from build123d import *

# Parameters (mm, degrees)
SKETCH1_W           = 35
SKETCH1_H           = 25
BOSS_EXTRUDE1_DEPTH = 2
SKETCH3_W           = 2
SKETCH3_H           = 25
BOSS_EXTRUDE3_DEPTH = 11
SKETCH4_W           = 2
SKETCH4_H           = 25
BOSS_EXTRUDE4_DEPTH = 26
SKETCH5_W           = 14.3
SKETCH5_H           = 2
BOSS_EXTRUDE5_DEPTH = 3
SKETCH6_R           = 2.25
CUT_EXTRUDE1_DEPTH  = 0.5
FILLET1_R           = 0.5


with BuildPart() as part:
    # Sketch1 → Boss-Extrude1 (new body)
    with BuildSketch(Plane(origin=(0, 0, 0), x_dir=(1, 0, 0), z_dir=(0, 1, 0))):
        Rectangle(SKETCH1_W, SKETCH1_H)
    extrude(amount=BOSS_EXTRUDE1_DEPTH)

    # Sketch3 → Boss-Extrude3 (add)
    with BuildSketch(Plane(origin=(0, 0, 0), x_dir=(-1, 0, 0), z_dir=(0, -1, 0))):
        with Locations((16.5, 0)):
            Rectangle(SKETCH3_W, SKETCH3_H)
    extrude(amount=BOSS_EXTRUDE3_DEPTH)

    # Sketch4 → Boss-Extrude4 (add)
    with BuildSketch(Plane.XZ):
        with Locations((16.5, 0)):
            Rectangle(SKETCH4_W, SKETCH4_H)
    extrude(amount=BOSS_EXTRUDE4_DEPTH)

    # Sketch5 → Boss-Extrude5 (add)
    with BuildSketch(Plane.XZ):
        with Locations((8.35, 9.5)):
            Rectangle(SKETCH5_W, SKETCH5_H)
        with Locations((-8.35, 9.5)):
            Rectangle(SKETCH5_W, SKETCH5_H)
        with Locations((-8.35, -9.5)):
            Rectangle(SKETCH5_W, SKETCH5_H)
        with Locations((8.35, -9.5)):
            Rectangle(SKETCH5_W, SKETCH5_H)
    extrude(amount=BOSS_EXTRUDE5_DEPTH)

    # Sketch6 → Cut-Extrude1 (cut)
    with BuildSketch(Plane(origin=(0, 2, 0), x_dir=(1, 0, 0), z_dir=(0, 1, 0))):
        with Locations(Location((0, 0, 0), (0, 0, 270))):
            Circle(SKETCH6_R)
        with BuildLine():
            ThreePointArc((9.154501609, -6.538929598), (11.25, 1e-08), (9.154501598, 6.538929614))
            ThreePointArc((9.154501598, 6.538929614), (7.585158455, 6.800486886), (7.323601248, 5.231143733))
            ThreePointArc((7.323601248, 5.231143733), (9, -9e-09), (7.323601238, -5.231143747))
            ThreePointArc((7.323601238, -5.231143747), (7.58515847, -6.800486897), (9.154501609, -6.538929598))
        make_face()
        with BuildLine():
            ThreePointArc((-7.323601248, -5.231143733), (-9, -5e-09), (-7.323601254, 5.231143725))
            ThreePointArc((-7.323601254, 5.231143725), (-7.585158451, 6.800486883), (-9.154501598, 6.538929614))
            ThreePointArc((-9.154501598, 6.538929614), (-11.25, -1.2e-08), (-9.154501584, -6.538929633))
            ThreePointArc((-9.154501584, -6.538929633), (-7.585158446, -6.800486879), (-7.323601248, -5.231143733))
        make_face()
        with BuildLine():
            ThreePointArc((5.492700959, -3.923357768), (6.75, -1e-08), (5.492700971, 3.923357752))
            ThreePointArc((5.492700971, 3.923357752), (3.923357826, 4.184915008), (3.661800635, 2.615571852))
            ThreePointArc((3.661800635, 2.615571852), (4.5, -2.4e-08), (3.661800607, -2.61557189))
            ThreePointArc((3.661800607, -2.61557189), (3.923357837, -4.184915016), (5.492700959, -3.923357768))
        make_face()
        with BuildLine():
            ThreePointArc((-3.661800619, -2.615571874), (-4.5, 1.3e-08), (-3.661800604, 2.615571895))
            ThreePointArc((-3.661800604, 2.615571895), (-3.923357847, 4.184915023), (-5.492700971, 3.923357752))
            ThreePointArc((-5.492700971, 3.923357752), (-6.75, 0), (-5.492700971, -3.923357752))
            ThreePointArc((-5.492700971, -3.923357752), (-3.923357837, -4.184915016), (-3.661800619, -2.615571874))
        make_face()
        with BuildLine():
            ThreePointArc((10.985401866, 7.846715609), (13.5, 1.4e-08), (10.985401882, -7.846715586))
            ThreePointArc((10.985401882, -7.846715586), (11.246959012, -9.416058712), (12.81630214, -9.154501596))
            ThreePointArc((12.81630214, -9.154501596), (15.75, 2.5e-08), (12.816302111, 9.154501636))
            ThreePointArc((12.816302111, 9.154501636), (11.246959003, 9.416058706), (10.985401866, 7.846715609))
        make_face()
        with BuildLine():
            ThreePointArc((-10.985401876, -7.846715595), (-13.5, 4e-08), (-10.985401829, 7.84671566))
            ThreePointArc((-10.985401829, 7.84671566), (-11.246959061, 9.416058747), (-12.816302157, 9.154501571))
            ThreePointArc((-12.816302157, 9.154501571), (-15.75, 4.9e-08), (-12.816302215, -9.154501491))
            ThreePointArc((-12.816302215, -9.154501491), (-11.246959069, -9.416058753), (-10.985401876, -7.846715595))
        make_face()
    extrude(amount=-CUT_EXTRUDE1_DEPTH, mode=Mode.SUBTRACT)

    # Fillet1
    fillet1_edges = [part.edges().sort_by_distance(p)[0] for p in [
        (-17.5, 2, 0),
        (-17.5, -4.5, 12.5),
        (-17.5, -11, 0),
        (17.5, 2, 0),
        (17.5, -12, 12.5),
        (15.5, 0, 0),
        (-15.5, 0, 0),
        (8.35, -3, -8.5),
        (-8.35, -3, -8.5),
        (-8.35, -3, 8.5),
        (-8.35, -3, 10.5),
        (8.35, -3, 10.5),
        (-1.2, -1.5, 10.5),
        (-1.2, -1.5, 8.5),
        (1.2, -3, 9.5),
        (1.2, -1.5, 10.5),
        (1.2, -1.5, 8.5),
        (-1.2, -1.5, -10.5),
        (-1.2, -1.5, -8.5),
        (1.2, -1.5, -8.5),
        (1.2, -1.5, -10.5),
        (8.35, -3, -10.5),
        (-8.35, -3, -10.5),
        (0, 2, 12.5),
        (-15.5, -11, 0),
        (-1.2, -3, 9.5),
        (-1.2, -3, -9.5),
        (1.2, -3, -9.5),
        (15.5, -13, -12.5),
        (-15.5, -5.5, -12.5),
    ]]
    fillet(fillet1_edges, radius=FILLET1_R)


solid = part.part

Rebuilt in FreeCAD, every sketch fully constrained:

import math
import FreeCAD as App
import Part
import Sketcher


def edges_at(feature, points):
    """Names of the edges that pass closest to the given points."""
    edges = feature.Shape.Edges
    near = lambda p: min(range(len(edges)), key=lambda i: edges[i].distToShape(Part.Vertex(*p))[0])
    return sorted({f"Edge{near(p) + 1}" for p in points})

doc = App.newDocument("Part")
params = doc.addObject("Spreadsheet::Sheet", "Params")
for row, (alias, value) in enumerate([
    ("sketch1_width", "35 mm"),
    ("sketch1_height", "25 mm"),
    ("pad1_length", "2 mm"),
    ("sketch2_width", "2 mm"),
    ("sketch2_height", "25 mm"),
    ("pad2_length", "11 mm"),
    ("sketch3_width", "2 mm"),
    ("sketch3_height", "25 mm"),
    ("pad3_length", "26 mm"),
    ("sketch4_height", "2 mm"),
    ("sketch4_width", "14.3 mm"),
    ("pad4_length", "3 mm"),
    ("sketch5_radius", "9 mm"),
    ("sketch5_diameter", "4.5 mm"),
    ("sketch5_radius2", "4.5 mm"),
    ("sketch5_radius3", "13.5 mm"),
    ("sketch5_radius4", "11.25 mm"),
    ("pocket1_length", "0.5 mm"),
    ("fillet_radius", "0.5 mm"),
], start=1):
    params.set(f"A{row}", alias)
    params.set(f"B{row}", "=" + value)
    params.setAlias(f"B{row}", alias)

body = doc.addObject("PartDesign::Body", "Body")

sketch1 = body.newObject("Sketcher::SketchObject", "Sketch")
sketch1.AttachmentSupport = (doc.getObject("XZ_Plane"), [""])
sketch1.MapMode = "FlatFace"
sketch1.addGeometry([
    Part.LineSegment(App.Vector(-17.5, -12.5, 0), App.Vector(-17.5, 12.5, 0)),
    Part.LineSegment(App.Vector(-17.5, 12.5, 0), App.Vector(17.5, 12.5, 0)),
    Part.LineSegment(App.Vector(17.5, 12.5, 0), App.Vector(17.5, -12.5, 0)),
    Part.LineSegment(App.Vector(17.5, -12.5, 0), App.Vector(-17.5, -12.5, 0)),
], False)
sketch1.addConstraint([
    Sketcher.Constraint("Coincident", 0, 2, 1, 1),
    Sketcher.Constraint("Coincident", 1, 2, 2, 1),
    Sketcher.Constraint("Coincident", 2, 2, 3, 1),
    Sketcher.Constraint("Coincident", 3, 2, 0, 1),
    Sketcher.Constraint("Vertical", 0),
    Sketcher.Constraint("Horizontal", 1),
    Sketcher.Constraint("Vertical", 2),
    Sketcher.Constraint("Horizontal", 3),
    Sketcher.Constraint("Symmetric", 0, 2, 2, 2, -1, 1),
    Sketcher.Constraint("DistanceX", 1, 1, 1, 2, 35.0),
    Sketcher.Constraint("DistanceY", 0, 1, 0, 2, 25.0),
])
sketch1.setExpression("Constraints[9]", "Params.sketch1_width")
sketch1.setExpression("Constraints[10]", "Params.sketch1_height")
pad1 = body.newObject("PartDesign::Pad", "Pad")
pad1.Profile = sketch1
pad1.setExpression("Length", "Params.pad1_length")
pad1.Reversed = True

sketch2 = body.newObject("Sketcher::SketchObject", "Sketch001")
sketch2.AttachmentSupport = (doc.getObject("XZ_Plane"), [""])
sketch2.MapMode = "FlatFace"
sketch2.addGeometry([
    Part.LineSegment(App.Vector(-15.5, -12.5, 0), App.Vector(-15.5, 12.5, 0)),
    Part.LineSegment(App.Vector(-15.5, 12.5, 0), App.Vector(-17.5, 12.5, 0)),
    Part.LineSegment(App.Vector(-17.5, 12.5, 0), App.Vector(-17.5, -12.5, 0)),
    Part.LineSegment(App.Vector(-17.5, -12.5, 0), App.Vector(-15.5, -12.5, 0)),
], False)
sketch2.addConstraint([
    Sketcher.Constraint("Coincident", 0, 2, 1, 1),
    Sketcher.Constraint("Coincident", 1, 2, 2, 1),
    Sketcher.Constraint("Coincident", 2, 2, 3, 1),
    Sketcher.Constraint("Coincident", 3, 2, 0, 1),
    Sketcher.Constraint("Vertical", 0),
    Sketcher.Constraint("Horizontal", 1),
    Sketcher.Constraint("Vertical", 2),
    Sketcher.Constraint("Horizontal", 3),
    Sketcher.Constraint("DistanceX", 1, 2, 1, 1, 2.0),
    Sketcher.Constraint("DistanceY", 0, 1, 0, 2, 25.0),
    Sketcher.Constraint("DistanceX", 0, 2, -1, 1, 15.5),
    Sketcher.Constraint("DistanceY", -1, 1, 0, 2, 12.5),
])
sketch2.setExpression("Constraints[8]", "Params.sketch2_width")
sketch2.setExpression("Constraints[9]", "Params.sketch2_height")
pad2 = body.newObject("PartDesign::Pad", "Pad001")
pad2.Profile = sketch2
pad2.setExpression("Length", "Params.pad2_length")

sketch3 = body.newObject("Sketcher::SketchObject", "Sketch002")
sketch3.AttachmentSupport = (doc.getObject("XZ_Plane"), [""])
sketch3.MapMode = "FlatFace"
sketch3.addGeometry([
    Part.LineSegment(App.Vector(15.5, 12.5, 0), App.Vector(15.5, -12.5, 0)),
    Part.LineSegment(App.Vector(15.5, -12.5, 0), App.Vector(17.5, -12.5, 0)),
    Part.LineSegment(App.Vector(17.5, -12.5, 0), App.Vector(17.5, 12.5, 0)),
    Part.LineSegment(App.Vector(17.5, 12.5, 0), App.Vector(15.5, 12.5, 0)),
], False)
sketch3.addConstraint([
    Sketcher.Constraint("Coincident", 0, 2, 1, 1),
    Sketcher.Constraint("Coincident", 1, 2, 2, 1),
    Sketcher.Constraint("Coincident", 2, 2, 3, 1),
    Sketcher.Constraint("Coincident", 3, 2, 0, 1),
    Sketcher.Constraint("Vertical", 0),
    Sketcher.Constraint("Horizontal", 1),
    Sketcher.Constraint("Vertical", 2),
    Sketcher.Constraint("Horizontal", 3),
    Sketcher.Constraint("DistanceX", 1, 1, 1, 2, 2.0),
    Sketcher.Constraint("DistanceY", 0, 2, 0, 1, 25.0),
    Sketcher.Constraint("DistanceX", -1, 1, 0, 2, 15.5),
    Sketcher.Constraint("DistanceY", 0, 2, -1, 1, 12.5),
])
sketch3.setExpression("Constraints[8]", "Params.sketch3_width")
sketch3.setExpression("Constraints[9]", "Params.sketch3_height")
pad3 = body.newObject("PartDesign::Pad", "Pad002")
pad3.Profile = sketch3
pad3.setExpression("Length", "Params.pad3_length")

sketch4 = body.newObject("Sketcher::SketchObject", "Sketch003")
sketch4.AttachmentSupport = (doc.getObject("XZ_Plane"), [""])
sketch4.MapMode = "FlatFace"
sketch4.addGeometry([
    Part.LineSegment(App.Vector(1.2, 10.5, 0), App.Vector(1.2, 8.5, 0)),
    Part.LineSegment(App.Vector(1.2, 8.5, 0), App.Vector(15.5, 8.5, 0)),
    Part.LineSegment(App.Vector(15.5, 8.5, 0), App.Vector(15.5, 10.5, 0)),
    Part.LineSegment(App.Vector(15.5, 10.5, 0), App.Vector(1.2, 10.5, 0)),
    Part.LineSegment(App.Vector(-15.5, 10.5, 0), App.Vector(-15.5, 8.5, 0)),
    Part.LineSegment(App.Vector(-15.5, 8.5, 0), App.Vector(-1.2, 8.5, 0)),
    Part.LineSegment(App.Vector(-1.2, 8.5, 0), App.Vector(-1.2, 10.5, 0)),
    Part.LineSegment(App.Vector(-1.2, 10.5, 0), App.Vector(-15.5, 10.5, 0)),
    Part.LineSegment(App.Vector(-15.5, -8.5, 0), App.Vector(-15.5, -10.5, 0)),
    Part.LineSegment(App.Vector(-15.5, -10.5, 0), App.Vector(-1.2, -10.5, 0)),
    Part.LineSegment(App.Vector(-1.2, -10.5, 0), App.Vector(-1.2, -8.5, 0)),
    Part.LineSegment(App.Vector(-1.2, -8.5, 0), App.Vector(-15.5, -8.5, 0)),
    Part.LineSegment(App.Vector(1.2, -8.5, 0), App.Vector(1.2, -10.5, 0)),
    Part.LineSegment(App.Vector(1.2, -10.5, 0), App.Vector(15.5, -10.5, 0)),
    Part.LineSegment(App.Vector(15.5, -10.5, 0), App.Vector(15.5, -8.5, 0)),
    Part.LineSegment(App.Vector(15.5, -8.5, 0), App.Vector(1.2, -8.5, 0)),
], False)
sketch4.addConstraint([
    Sketcher.Constraint("Coincident", 0, 2, 1, 1),
    Sketcher.Constraint("Coincident", 1, 2, 2, 1),
    Sketcher.Constraint("Coincident", 2, 2, 3, 1),
    Sketcher.Constraint("Coincident", 3, 2, 0, 1),
    Sketcher.Constraint("Coincident", 4, 2, 5, 1),
    Sketcher.Constraint("Coincident", 5, 2, 6, 1),
    Sketcher.Constraint("Coincident", 6, 2, 7, 1),
    Sketcher.Constraint("Coincident", 7, 2, 4, 1),
    Sketcher.Constraint("Coincident", 8, 2, 9, 1),
    Sketcher.Constraint("Coincident", 9, 2, 10, 1),
    Sketcher.Constraint("Coincident", 10, 2, 11, 1),
    Sketcher.Constraint("Coincident", 11, 2, 8, 1),
    Sketcher.Constraint("Coincident", 12, 2, 13, 1),
    Sketcher.Constraint("Coincident", 13, 2, 14, 1),
    Sketcher.Constraint("Coincident", 14, 2, 15, 1),
    Sketcher.Constraint("Coincident", 15, 2, 12, 1),
    Sketcher.Constraint("Vertical", 0),
    Sketcher.Constraint("Horizontal", 1),
    Sketcher.Constraint("Vertical", 2),
    Sketcher.Constraint("Horizontal", 3),
    Sketcher.Constraint("Vertical", 4),
    Sketcher.Constraint("Horizontal", 5),
    Sketcher.Constraint("Vertical", 6),
    Sketcher.Constraint("Horizontal", 7),
    Sketcher.Constraint("Vertical", 8),
    Sketcher.Constraint("Horizontal", 9),
    Sketcher.Constraint("Vertical", 10),
    Sketcher.Constraint("Horizontal", 11),
    Sketcher.Constraint("Vertical", 12),
    Sketcher.Constraint("Horizontal", 13),
    Sketcher.Constraint("Vertical", 14),
    Sketcher.Constraint("Horizontal", 15),
    Sketcher.Constraint("Symmetric", 2, 2, 8, 2, -1, 1),
    Sketcher.Constraint("Symmetric", 0, 2, 10, 2, -1, 1),
    Sketcher.Constraint("Symmetric", 6, 2, 12, 2, -1, 1),
    Sketcher.Constraint("Symmetric", 4, 2, 14, 2, -1, 1),
    Sketcher.Constraint("Symmetric", 1, 2, 4, 2, -2),
    Sketcher.Constraint("Symmetric", 3, 2, 6, 2, -2),
    Sketcher.Constraint("DistanceY", 0, 2, 0, 1, 2.0),
    Sketcher.Constraint("DistanceX", 1, 1, 1, 2, 14.3),
    Sketcher.Constraint("DistanceX", 4, 2, 1, 2, 31.0),
    Sketcher.Constraint("DistanceY", 8, 2, 4, 2, 19.0),
])
sketch4.setExpression("Constraints[38]", "Params.sketch4_height")
sketch4.setExpression("Constraints[39]", "Params.sketch4_width")
pad4 = body.newObject("PartDesign::Pad", "Pad003")
pad4.Profile = sketch4
pad4.setExpression("Length", "Params.pad4_length")

sketch5 = body.newObject("Sketcher::SketchObject", "Sketch004")
sketch5.AttachmentSupport = (doc.getObject("XZ_Plane"), [""])
sketch5.MapMode = "FlatFace"
sketch5.AttachmentOffset = App.Placement(App.Vector(0, 0, -2), App.Rotation())
sketch5.addGeometry([
    Part.Circle(App.Vector(0, 0, 0), App.Vector(0, 0, 1), 2.25),
    Part.ArcOfCircle(Part.Circle(App.Vector(0, 0, 0), App.Vector(0, 0, 1), 11.25), math.radians(-35.537677), math.radians(35.537677)),
    Part.ArcOfCircle(Part.Circle(App.Vector(8.239051, -5.885037, 0), App.Vector(0, 0, 1), 1.125), math.radians(144.462322), math.radians(324.462326)),
    Part.ArcOfCircle(Part.Circle(App.Vector(0, 0, 0), App.Vector(0, 0, 1), 9), math.radians(-35.537678), math.radians(35.537678)),
    Part.ArcOfCircle(Part.Circle(App.Vector(8.239051, 5.885037, 0), App.Vector(0, 0, 1), 1.125), math.radians(35.537673), math.radians(215.537678)),
    Part.ArcOfCircle(Part.Circle(App.Vector(0, 0, 0), App.Vector(0, 0, 1), 9), math.radians(144.462322), math.radians(215.537678)),
    Part.ArcOfCircle(Part.Circle(App.Vector(-8.239051, -5.885037, 0), App.Vector(0, 0, 1), 1.125), math.radians(-144.462326), math.radians(35.537679)),
    Part.ArcOfCircle(Part.Circle(App.Vector(0, 0, 0), App.Vector(0, 0, 1), 11.25), math.radians(144.462322), math.radians(215.537677)),
    Part.ArcOfCircle(Part.Circle(App.Vector(-8.239051, 5.885037, 0), App.Vector(0, 0, 1), 1.125), math.radians(-35.537678), math.radians(144.462325)),
    Part.ArcOfCircle(Part.Circle(App.Vector(0, 0, 0), App.Vector(0, 0, 1), 6.75), math.radians(-35.537677), math.radians(35.537677)),
    Part.ArcOfCircle(Part.Circle(App.Vector(4.577251, -3.269465, 0), App.Vector(0, 0, 1), 1.125), math.radians(144.462321), math.radians(324.462326)),
    Part.ArcOfCircle(Part.Circle(App.Vector(0, 0, 0), App.Vector(0, 0, 1), 4.5), math.radians(-35.537677), math.radians(35.537678)),
    Part.ArcOfCircle(Part.Circle(App.Vector(4.577251, 3.269465, 0), App.Vector(0, 0, 1), 1.125), math.radians(35.537675), math.radians(215.537677)),
    Part.ArcOfCircle(Part.Circle(App.Vector(0, 0, 0), App.Vector(0, 0, 1), 4.5), math.radians(144.462322), math.radians(215.537678)),
    Part.ArcOfCircle(Part.Circle(App.Vector(-4.577251, -3.269465, 0), App.Vector(0, 0, 1), 1.125), math.radians(-144.462326), math.radians(35.537676)),
    Part.ArcOfCircle(Part.Circle(App.Vector(0, 0, 0), App.Vector(0, 0, 1), 6.75), math.radians(144.462323), math.radians(215.537677)),
    Part.ArcOfCircle(Part.Circle(App.Vector(-4.577251, 3.269465, 0), App.Vector(0, 0, 1), 1.125), math.radians(-35.537678), math.radians(144.462326)),
    Part.ArcOfCircle(Part.Circle(App.Vector(0, 0, 0), App.Vector(0, 0, 1), 13.5), math.radians(-35.537678), math.radians(35.537678)),
    Part.ArcOfCircle(Part.Circle(App.Vector(11.900852, 8.500609, 0), App.Vector(0, 0, 1), 1.125), math.radians(35.537681), math.radians(215.53768)),
    Part.ArcOfCircle(Part.Circle(App.Vector(0, 0, 0), App.Vector(0, 0, 1), 15.75), math.radians(-35.537678), math.radians(35.537678)),
    Part.ArcOfCircle(Part.Circle(App.Vector(11.900852, -8.500609, 0), App.Vector(0, 0, 1), 1.125), math.radians(144.462322), math.radians(324.462317)),
    Part.ArcOfCircle(Part.Circle(App.Vector(0, 0, 0), App.Vector(0, 0, 1), 13.5), math.radians(144.462322), math.radians(215.537678)),
    Part.ArcOfCircle(Part.Circle(App.Vector(-11.900852, -8.500609, 0), App.Vector(0, 0, 1), 1.125), math.radians(-144.462321), math.radians(35.537675)),
    Part.ArcOfCircle(Part.Circle(App.Vector(0, 0, 0), App.Vector(0, 0, 1), 15.75), math.radians(144.462322), math.radians(215.537678)),
    Part.ArcOfCircle(Part.Circle(App.Vector(-11.900852, 8.500609, 0), App.Vector(0, 0, 1), 1.125), math.radians(-35.537679), math.radians(144.462326)),
], False)
sketch5.addConstraint([
    Sketcher.Constraint("Tangent", 1, 1, 2, 2),
    Sketcher.Constraint("Tangent", 2, 1, 3, 1),
    Sketcher.Constraint("Tangent", 3, 2, 4, 2),
    Sketcher.Constraint("Tangent", 4, 1, 1, 2),
    Sketcher.Constraint("Tangent", 5, 2, 6, 2),
    Sketcher.Constraint("Tangent", 6, 1, 7, 2),
    Sketcher.Constraint("Tangent", 7, 1, 8, 2),
    Sketcher.Constraint("Tangent", 8, 1, 5, 1),
    Sketcher.Constraint("Tangent", 9, 1, 10, 2),
    Sketcher.Constraint("Tangent", 10, 1, 11, 1),
    Sketcher.Constraint("Tangent", 11, 2, 12, 2),
    Sketcher.Constraint("Tangent", 12, 1, 9, 2),
    Sketcher.Constraint("Tangent", 13, 2, 14, 2),
    Sketcher.Constraint("Tangent", 14, 1, 15, 2),
    Sketcher.Constraint("Tangent", 15, 1, 16, 2),
    Sketcher.Constraint("Tangent", 16, 1, 13, 1),
    Sketcher.Constraint("Tangent", 17, 2, 18, 2),
    Sketcher.Constraint("Tangent", 18, 1, 19, 2),
    Sketcher.Constraint("Tangent", 19, 1, 20, 2),
    Sketcher.Constraint("Tangent", 20, 1, 17, 1),
    Sketcher.Constraint("Tangent", 21, 2, 22, 2),
    Sketcher.Constraint("Tangent", 22, 1, 23, 2),
    Sketcher.Constraint("Tangent", 23, 1, 24, 2),
    Sketcher.Constraint("Tangent", 24, 1, 21, 1),
    Sketcher.Constraint("Coincident", 0, 3, -1, 1),
    Sketcher.Constraint("Coincident", 1, 3, -1, 1),
    Sketcher.Constraint("Coincident", 3, 3, -1, 1),
    Sketcher.Constraint("Coincident", 5, 3, -1, 1),
    Sketcher.Constraint("Coincident", 7, 3, -1, 1),
    Sketcher.Constraint("Coincident", 9, 3, -1, 1),
    Sketcher.Constraint("Coincident", 11, 3, -1, 1),
    Sketcher.Constraint("Coincident", 13, 3, -1, 1),
    Sketcher.Constraint("Coincident", 15, 3, -1, 1),
    Sketcher.Constraint("Coincident", 17, 3, -1, 1),
    Sketcher.Constraint("Coincident", 19, 3, -1, 1),
    Sketcher.Constraint("Coincident", 21, 3, -1, 1),
    Sketcher.Constraint("Coincident", 23, 3, -1, 1),
    Sketcher.Constraint("Equal", 3, 5),
    Sketcher.Constraint("Equal", 4, 6),
    Sketcher.Constraint("Equal", 8, 10),
    Sketcher.Constraint("Equal", 11, 13),
    Sketcher.Constraint("Equal", 12, 14),
    Sketcher.Constraint("Equal", 16, 18),
    Sketcher.Constraint("Equal", 17, 21),
    Sketcher.Constraint("Equal", 20, 22),
    Sketcher.Constraint("Horizontal", 2, 3, 6, 3),
    Sketcher.Constraint("Horizontal", 4, 3, 8, 3),
    Sketcher.Constraint("Horizontal", 10, 3, 14, 3),
    Sketcher.Constraint("Horizontal", 12, 3, 16, 3),
    Sketcher.Constraint("Horizontal", 20, 3, 22, 3),
    Sketcher.Constraint("Horizontal", 18, 3, 24, 3),
    Sketcher.Constraint("Vertical", 2, 3, 4, 3),
    Sketcher.Constraint("Vertical", 10, 3, 12, 3),
    Sketcher.Constraint("Vertical", 18, 3, 20, 3),
    Sketcher.Constraint("Radius", 3, 9.0),
    Sketcher.Constraint("Diameter", 0, 4.5),
    Sketcher.Constraint("Radius", 11, 4.5),
    Sketcher.Constraint("Radius", 17, 13.5),
    Sketcher.Constraint("Radius", 1, 11.25),
    Sketcher.Constraint("DistanceX", -1, 1, 1, 1, 9.154502),
    Sketcher.Constraint("DistanceX", -1, 1, 9, 1, 5.492701),
    Sketcher.Constraint("DistanceX", -1, 1, 17, 2, 10.985402),
])
sketch5.setExpression("Constraints[54]", "Params.sketch5_radius")
sketch5.setExpression("Constraints[55]", "Params.sketch5_diameter")
sketch5.setExpression("Constraints[56]", "Params.sketch5_radius2")
sketch5.setExpression("Constraints[57]", "Params.sketch5_radius3")
sketch5.setExpression("Constraints[58]", "Params.sketch5_radius4")
pocket1 = body.newObject("PartDesign::Pocket", "Pocket")
pocket1.Profile = sketch5
pocket1.setExpression("Length", "Params.pocket1_length")
pocket1.Reversed = True
doc.recompute()

fillet = body.newObject("PartDesign::Fillet", "Fillet")
fillet.Base = (pocket1, edges_at(pocket1, [
    (-17.5, 2, 0),
    (-17.5, -4.5, 12.5),
    (-17.5, -11, 0),
    (17.5, 2, 0),
    (17.5, -12, 12.5),
    (15.5, 0, 0),
    (-15.5, 0, 0),
    (8.35, -3, -8.5),
    (-8.35, -3, -8.5),
    (-8.35, -3, 8.5),
    (-8.35, -3, 10.5),
    (8.35, -3, 10.5),
    (-1.2, -1.5, 10.5),
    (-1.2, -1.5, 8.5),
    (1.2, -3, 9.5),
    (1.2, -1.5, 10.5),
    (1.2, -1.5, 8.5),
    (-1.2, -1.5, -10.5),
    (-1.2, -1.5, -8.5),
    (1.2, -1.5, -8.5),
    (1.2, -1.5, -10.5),
    (8.35, -3, -10.5),
    (-8.35, -3, -10.5),
    (0, 2, 12.5),
    (-15.5, -11, 0),
    (-1.2, -3, 9.5),
    (-1.2, -3, -9.5),
    (1.2, -3, -9.5),
    (15.5, -13, -12.5),
    (-15.5, -5.5, -12.5),
]))
fillet.setExpression("Radius", "Params.fillet_radius")

doc.recompute()
